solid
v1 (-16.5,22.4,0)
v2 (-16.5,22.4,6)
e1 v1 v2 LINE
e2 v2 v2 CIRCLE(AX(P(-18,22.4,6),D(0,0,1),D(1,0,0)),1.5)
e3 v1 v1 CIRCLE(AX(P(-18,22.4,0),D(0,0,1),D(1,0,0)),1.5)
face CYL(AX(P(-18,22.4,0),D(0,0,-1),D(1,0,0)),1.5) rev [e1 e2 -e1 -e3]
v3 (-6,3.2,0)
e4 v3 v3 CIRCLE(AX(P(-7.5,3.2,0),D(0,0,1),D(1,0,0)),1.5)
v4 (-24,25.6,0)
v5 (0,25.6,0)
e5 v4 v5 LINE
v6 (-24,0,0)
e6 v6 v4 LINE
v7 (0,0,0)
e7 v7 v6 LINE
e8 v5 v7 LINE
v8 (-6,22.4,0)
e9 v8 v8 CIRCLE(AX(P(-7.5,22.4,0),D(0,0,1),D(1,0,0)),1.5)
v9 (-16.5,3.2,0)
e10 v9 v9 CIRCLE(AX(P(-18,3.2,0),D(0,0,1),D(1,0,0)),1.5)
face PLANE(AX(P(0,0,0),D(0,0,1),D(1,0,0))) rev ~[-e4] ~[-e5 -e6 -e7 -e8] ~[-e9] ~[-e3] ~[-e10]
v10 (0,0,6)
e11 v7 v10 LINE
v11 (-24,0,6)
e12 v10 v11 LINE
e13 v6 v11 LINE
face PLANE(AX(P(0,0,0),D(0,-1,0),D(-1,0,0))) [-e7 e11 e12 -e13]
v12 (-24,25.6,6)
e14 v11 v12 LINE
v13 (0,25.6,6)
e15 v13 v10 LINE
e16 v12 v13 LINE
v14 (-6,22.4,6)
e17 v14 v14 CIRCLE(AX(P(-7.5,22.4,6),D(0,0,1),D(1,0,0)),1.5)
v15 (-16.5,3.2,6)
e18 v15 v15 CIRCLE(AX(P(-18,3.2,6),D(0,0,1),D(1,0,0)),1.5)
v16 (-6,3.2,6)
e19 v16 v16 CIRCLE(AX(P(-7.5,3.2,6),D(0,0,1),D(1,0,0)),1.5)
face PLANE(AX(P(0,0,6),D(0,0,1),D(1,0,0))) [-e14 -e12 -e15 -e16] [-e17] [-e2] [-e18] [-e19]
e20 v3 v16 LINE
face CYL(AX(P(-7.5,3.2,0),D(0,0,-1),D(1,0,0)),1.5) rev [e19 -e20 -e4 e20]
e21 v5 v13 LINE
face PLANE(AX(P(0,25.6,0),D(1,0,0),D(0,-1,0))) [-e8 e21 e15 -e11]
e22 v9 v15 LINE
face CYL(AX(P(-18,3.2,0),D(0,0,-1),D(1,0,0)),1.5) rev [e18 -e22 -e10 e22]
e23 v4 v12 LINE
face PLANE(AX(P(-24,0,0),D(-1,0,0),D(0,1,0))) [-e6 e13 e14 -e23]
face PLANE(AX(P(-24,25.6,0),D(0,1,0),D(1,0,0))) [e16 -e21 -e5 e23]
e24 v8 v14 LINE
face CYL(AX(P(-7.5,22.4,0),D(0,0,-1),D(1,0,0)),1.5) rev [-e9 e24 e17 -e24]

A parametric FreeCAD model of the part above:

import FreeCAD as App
import Part
import Sketcher

V = App.Vector
Q = App.Units.Quantity

doc = App.newDocument("Part")
body = doc.addObject("PartDesign::Body", "Body")

# Sketch on XY plane
sketch1 = body.newObject("Sketcher::SketchObject", "Sketch")
sketch1.AttachmentSupport = (doc.getObject("XY_Plane"), [""])
sketch1.MapMode = "FlatFace"
sketch1.addGeometry([
    Part.LineSegment(V(-24, 0, 0), V(0, 0, 0)),  # 0
    Part.LineSegment(V(0, 0, 0), V(0, 25.6, 0)),  # 1
    Part.LineSegment(V(0, 25.6, 0), V(-24, 25.6, 0)),  # 2
    Part.LineSegment(V(-24, 25.6, 0), V(-24, 0, 0)),  # 3
    Part.Circle(V(-18, 3.2, 0), V(0, 0, 1), 1.5),  # 4
    Part.Circle(V(-7.5, 3.2, 0), V(0, 0, 1), 1.5),  # 5
    Part.Circle(V(-18, 22.4, 0), V(0, 0, 1), 1.5),  # 6
    Part.Circle(V(-7.5, 22.4, 0), V(0, 0, 1), 1.5),  # 7
], False)
sketch1.addConstraint([
    Sketcher.Constraint("Coincident", 0, 2, 1, 1),
    Sketcher.Constraint("Coincident", 1, 2, 2, 1),
    Sketcher.Constraint("Coincident", 2, 2, 3, 1),
    Sketcher.Constraint("Coincident", 3, 2, 0, 1),
    Sketcher.Constraint("Horizontal", 0),
    Sketcher.Constraint("Vertical", 1),
    Sketcher.Constraint("Horizontal", 2),
    Sketcher.Constraint("Vertical", 3),
    Sketcher.Constraint("Coincident", 0, 2, -1, 1),
    Sketcher.Constraint("Equal", 4, 5),
    Sketcher.Constraint("Equal", 5, 6),
    Sketcher.Constraint("Equal", 6, 7),
    Sketcher.Constraint("Horizontal", 4, 3, 5, 3),
    Sketcher.Constraint("Horizontal", 6, 3, 7, 3),
    Sketcher.Constraint("Vertical", 4, 3, 6, 3),
    Sketcher.Constraint("Vertical", 5, 3, 7, 3),
    Sketcher.Constraint("Diameter", 4, Q("3 mm")),
    Sketcher.Constraint("DistanceX", 0, 1, 0, 2, Q("24 mm")),
    Sketcher.Constraint("DistanceY", 1, 1, 1, 2, Q("25.6 mm")),
    Sketcher.Constraint("DistanceX", 4, 3, -1, 1, Q("18 mm")),
    Sketcher.Constraint("DistanceY", -1, 1, 4, 3, Q("3.2 mm")),
    Sketcher.Constraint("DistanceX", 5, 3, -1, 1, Q("7.5 mm")),
    Sketcher.Constraint("DistanceY", -1, 1, 6, 3, Q("22.4 mm")),
])
pad1 = body.newObject("PartDesign::Pad", "Pad")
pad1.Profile = sketch1
pad1.Length = 6

doc.recompute()
